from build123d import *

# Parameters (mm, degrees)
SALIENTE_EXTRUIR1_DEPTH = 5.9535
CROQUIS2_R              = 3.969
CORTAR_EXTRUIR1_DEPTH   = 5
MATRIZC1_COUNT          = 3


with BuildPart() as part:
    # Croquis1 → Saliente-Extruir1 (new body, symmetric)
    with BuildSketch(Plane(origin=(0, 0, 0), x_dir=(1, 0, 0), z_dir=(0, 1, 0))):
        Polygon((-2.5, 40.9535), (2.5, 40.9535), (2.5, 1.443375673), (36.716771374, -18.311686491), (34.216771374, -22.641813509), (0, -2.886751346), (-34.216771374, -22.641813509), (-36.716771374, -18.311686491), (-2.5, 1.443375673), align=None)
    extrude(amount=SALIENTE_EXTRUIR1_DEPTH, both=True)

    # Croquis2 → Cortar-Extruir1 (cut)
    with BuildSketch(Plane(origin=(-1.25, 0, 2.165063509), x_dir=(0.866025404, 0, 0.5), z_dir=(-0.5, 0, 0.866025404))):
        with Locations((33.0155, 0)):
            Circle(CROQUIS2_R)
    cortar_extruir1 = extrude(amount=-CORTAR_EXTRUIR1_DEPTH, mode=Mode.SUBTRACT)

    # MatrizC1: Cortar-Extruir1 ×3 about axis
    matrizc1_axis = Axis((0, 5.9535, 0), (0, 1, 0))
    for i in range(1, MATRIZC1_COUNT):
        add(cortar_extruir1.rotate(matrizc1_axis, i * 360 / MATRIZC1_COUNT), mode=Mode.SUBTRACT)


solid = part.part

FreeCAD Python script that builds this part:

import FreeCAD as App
import Part
import Sketcher
from FreeCAD import Vector
Q = App.Units.Quantity

doc = App.newDocument("Part")
body = doc.addObject("PartDesign::Body", "Body")

# Sketch on XZ plane
sketch1 = doc.addObject("Sketcher::SketchObject", "Sketch")
body.addObject(sketch1)
sketch1.AttachmentSupport = (doc.XZ_Plane, [""])
sketch1.MapMode = "FlatFace"
sketch1.addGeometry(Part.LineSegment(Vector(2.5, -40.9535, 0), Vector(-2.5, -40.9535, 0)), False)
sketch1.addGeometry(Part.LineSegment(Vector(-2.5, -40.9535, 0), Vector(-2.5, -1.443376, 0)), False)
sketch1.addGeometry(Part.LineSegment(Vector(-2.5, -1.443376, 0), Vector(-36.716771, 18.311686, 0)), False)
sketch1.addGeometry(Part.LineSegment(Vector(-36.716771, 18.311686, 0), Vector(-34.216771, 22.641814, 0)), False)
sketch1.addGeometry(Part.LineSegment(Vector(-34.216771, 22.641814, 0), Vector(0, 2.886751, 0)), False)
sketch1.addGeometry(Part.LineSegment(Vector(0, 2.886751, 0), Vector(34.216771, 22.641814, 0)), False)
sketch1.addGeometry(Part.LineSegment(Vector(34.216771, 22.641814, 0), Vector(36.716771, 18.311686, 0)), False)
sketch1.addGeometry(Part.LineSegment(Vector(36.716771, 18.311686, 0), Vector(2.5, -1.443376, 0)), False)
sketch1.addGeometry(Part.LineSegment(Vector(2.5, -1.443376, 0), Vector(2.5, -40.9535, 0)), False)
sketch1.addConstraint(Sketcher.Constraint("Coincident", 0, 2, 1, 1))
sketch1.addConstraint(Sketcher.Constraint("Coincident", 1, 2, 2, 1))
sketch1.addConstraint(Sketcher.Constraint("Coincident", 2, 2, 3, 1))
sketch1.addConstraint(Sketcher.Constraint("Coincident", 3, 2, 4, 1))
sketch1.addConstraint(Sketcher.Constraint("Coincident", 4, 2, 5, 1))
sketch1.addConstraint(Sketcher.Constraint("Coincident", 5, 2, 6, 1))
sketch1.addConstraint(Sketcher.Constraint("Coincident", 6, 2, 7, 1))
sketch1.addConstraint(Sketcher.Constraint("Coincident", 7, 2, 8, 1))
sketch1.addConstraint(Sketcher.Constraint("Coincident", 8, 2, 0, 1))
sketch1.addConstraint(Sketcher.Constraint("Horizontal", 0))
sketch1.addConstraint(Sketcher.Constraint("Vertical", 1))
sketch1.addConstraint(Sketcher.Constraint("Vertical", 8))
sketch1.addConstraint(Sketcher.Constraint("Symmetric", 3, 2, 5, 2, -2))
sketch1.addConstraint(Sketcher.Constraint("Symmetric", 2, 2, 6, 2, -2))
sketch1.addConstraint(Sketcher.Constraint("Symmetric", 1, 2, 7, 2, -2))
sketch1.addConstraint(Sketcher.Constraint("PointOnObject", 4, 2, -2))
sketch1.addConstraint(Sketcher.Constraint("Perpendicular", 2, 3))
sketch1.addConstraint(Sketcher.Constraint("Perpendicular", 3, 4))
sketch1.addConstraint(Sketcher.Constraint("Equal", 2, 4))
sketch1.addConstraint(Sketcher.Constraint("DistanceX", 0, 2, 0, 1, 5.0))
sketch1.addConstraint(Sketcher.Constraint("Angle", 2, Q("150 deg")))
sketch1.addConstraint(Sketcher.Constraint("DistanceY", 0, 2, -1, 1, 40.9535))
sketch1.addConstraint(Sketcher.Constraint("DistanceY", 1, 1, 1, 2, 39.510124))
sketch1.addConstraint(Sketcher.Constraint("DistanceX", 2, 2, -1, 1, 36.716771))
pad1 = doc.addObject("PartDesign::Pad", "Pad")
body.addObject(pad1)
pad1.Profile = sketch1
pad1.Length = 11.907
pad1.Midplane = True

# Sketch on an angled plane
sketch2 = doc.addObject("Sketcher::SketchObject", "Sketch001")
body.addObject(sketch2)
sketch2.Placement = App.Placement(Vector(-1.25, 0, 2.165064), App.Rotation(Vector(0.866025404, 0, 0.5), Vector(0, 1, 0), Vector(-0.5, 0, 0.866025404), "ZXY"))
sketch2.addGeometry(Part.Circle(Vector(33.0155, 0, 0), Vector(0, 0, 1), 3.969), False)
sketch2.addConstraint(Sketcher.Constraint("PointOnObject", 0, 3, -1))
sketch2.addConstraint(Sketcher.Constraint("Diameter", 0, 7.938))
sketch2.addConstraint(Sketcher.Constraint("DistanceX", -1, 1, 0, 3, 33.0155))
pocket1 = doc.addObject("PartDesign::Pocket", "Pocket")
body.addObject(pocket1)
pocket1.Profile = sketch2
pocket1.Length = 5
doc.recompute()

polarpattern = doc.addObject("PartDesign::PolarPattern", "PolarPattern")
body.addObject(polarpattern)
polarpattern.Originals = [pocket1]
polarpattern.Axis = (doc.Y_Axis, [""])
polarpattern.Angle = 360
polarpattern.Occurrences = 3
body.Tip = polarpattern

doc.recompute()
